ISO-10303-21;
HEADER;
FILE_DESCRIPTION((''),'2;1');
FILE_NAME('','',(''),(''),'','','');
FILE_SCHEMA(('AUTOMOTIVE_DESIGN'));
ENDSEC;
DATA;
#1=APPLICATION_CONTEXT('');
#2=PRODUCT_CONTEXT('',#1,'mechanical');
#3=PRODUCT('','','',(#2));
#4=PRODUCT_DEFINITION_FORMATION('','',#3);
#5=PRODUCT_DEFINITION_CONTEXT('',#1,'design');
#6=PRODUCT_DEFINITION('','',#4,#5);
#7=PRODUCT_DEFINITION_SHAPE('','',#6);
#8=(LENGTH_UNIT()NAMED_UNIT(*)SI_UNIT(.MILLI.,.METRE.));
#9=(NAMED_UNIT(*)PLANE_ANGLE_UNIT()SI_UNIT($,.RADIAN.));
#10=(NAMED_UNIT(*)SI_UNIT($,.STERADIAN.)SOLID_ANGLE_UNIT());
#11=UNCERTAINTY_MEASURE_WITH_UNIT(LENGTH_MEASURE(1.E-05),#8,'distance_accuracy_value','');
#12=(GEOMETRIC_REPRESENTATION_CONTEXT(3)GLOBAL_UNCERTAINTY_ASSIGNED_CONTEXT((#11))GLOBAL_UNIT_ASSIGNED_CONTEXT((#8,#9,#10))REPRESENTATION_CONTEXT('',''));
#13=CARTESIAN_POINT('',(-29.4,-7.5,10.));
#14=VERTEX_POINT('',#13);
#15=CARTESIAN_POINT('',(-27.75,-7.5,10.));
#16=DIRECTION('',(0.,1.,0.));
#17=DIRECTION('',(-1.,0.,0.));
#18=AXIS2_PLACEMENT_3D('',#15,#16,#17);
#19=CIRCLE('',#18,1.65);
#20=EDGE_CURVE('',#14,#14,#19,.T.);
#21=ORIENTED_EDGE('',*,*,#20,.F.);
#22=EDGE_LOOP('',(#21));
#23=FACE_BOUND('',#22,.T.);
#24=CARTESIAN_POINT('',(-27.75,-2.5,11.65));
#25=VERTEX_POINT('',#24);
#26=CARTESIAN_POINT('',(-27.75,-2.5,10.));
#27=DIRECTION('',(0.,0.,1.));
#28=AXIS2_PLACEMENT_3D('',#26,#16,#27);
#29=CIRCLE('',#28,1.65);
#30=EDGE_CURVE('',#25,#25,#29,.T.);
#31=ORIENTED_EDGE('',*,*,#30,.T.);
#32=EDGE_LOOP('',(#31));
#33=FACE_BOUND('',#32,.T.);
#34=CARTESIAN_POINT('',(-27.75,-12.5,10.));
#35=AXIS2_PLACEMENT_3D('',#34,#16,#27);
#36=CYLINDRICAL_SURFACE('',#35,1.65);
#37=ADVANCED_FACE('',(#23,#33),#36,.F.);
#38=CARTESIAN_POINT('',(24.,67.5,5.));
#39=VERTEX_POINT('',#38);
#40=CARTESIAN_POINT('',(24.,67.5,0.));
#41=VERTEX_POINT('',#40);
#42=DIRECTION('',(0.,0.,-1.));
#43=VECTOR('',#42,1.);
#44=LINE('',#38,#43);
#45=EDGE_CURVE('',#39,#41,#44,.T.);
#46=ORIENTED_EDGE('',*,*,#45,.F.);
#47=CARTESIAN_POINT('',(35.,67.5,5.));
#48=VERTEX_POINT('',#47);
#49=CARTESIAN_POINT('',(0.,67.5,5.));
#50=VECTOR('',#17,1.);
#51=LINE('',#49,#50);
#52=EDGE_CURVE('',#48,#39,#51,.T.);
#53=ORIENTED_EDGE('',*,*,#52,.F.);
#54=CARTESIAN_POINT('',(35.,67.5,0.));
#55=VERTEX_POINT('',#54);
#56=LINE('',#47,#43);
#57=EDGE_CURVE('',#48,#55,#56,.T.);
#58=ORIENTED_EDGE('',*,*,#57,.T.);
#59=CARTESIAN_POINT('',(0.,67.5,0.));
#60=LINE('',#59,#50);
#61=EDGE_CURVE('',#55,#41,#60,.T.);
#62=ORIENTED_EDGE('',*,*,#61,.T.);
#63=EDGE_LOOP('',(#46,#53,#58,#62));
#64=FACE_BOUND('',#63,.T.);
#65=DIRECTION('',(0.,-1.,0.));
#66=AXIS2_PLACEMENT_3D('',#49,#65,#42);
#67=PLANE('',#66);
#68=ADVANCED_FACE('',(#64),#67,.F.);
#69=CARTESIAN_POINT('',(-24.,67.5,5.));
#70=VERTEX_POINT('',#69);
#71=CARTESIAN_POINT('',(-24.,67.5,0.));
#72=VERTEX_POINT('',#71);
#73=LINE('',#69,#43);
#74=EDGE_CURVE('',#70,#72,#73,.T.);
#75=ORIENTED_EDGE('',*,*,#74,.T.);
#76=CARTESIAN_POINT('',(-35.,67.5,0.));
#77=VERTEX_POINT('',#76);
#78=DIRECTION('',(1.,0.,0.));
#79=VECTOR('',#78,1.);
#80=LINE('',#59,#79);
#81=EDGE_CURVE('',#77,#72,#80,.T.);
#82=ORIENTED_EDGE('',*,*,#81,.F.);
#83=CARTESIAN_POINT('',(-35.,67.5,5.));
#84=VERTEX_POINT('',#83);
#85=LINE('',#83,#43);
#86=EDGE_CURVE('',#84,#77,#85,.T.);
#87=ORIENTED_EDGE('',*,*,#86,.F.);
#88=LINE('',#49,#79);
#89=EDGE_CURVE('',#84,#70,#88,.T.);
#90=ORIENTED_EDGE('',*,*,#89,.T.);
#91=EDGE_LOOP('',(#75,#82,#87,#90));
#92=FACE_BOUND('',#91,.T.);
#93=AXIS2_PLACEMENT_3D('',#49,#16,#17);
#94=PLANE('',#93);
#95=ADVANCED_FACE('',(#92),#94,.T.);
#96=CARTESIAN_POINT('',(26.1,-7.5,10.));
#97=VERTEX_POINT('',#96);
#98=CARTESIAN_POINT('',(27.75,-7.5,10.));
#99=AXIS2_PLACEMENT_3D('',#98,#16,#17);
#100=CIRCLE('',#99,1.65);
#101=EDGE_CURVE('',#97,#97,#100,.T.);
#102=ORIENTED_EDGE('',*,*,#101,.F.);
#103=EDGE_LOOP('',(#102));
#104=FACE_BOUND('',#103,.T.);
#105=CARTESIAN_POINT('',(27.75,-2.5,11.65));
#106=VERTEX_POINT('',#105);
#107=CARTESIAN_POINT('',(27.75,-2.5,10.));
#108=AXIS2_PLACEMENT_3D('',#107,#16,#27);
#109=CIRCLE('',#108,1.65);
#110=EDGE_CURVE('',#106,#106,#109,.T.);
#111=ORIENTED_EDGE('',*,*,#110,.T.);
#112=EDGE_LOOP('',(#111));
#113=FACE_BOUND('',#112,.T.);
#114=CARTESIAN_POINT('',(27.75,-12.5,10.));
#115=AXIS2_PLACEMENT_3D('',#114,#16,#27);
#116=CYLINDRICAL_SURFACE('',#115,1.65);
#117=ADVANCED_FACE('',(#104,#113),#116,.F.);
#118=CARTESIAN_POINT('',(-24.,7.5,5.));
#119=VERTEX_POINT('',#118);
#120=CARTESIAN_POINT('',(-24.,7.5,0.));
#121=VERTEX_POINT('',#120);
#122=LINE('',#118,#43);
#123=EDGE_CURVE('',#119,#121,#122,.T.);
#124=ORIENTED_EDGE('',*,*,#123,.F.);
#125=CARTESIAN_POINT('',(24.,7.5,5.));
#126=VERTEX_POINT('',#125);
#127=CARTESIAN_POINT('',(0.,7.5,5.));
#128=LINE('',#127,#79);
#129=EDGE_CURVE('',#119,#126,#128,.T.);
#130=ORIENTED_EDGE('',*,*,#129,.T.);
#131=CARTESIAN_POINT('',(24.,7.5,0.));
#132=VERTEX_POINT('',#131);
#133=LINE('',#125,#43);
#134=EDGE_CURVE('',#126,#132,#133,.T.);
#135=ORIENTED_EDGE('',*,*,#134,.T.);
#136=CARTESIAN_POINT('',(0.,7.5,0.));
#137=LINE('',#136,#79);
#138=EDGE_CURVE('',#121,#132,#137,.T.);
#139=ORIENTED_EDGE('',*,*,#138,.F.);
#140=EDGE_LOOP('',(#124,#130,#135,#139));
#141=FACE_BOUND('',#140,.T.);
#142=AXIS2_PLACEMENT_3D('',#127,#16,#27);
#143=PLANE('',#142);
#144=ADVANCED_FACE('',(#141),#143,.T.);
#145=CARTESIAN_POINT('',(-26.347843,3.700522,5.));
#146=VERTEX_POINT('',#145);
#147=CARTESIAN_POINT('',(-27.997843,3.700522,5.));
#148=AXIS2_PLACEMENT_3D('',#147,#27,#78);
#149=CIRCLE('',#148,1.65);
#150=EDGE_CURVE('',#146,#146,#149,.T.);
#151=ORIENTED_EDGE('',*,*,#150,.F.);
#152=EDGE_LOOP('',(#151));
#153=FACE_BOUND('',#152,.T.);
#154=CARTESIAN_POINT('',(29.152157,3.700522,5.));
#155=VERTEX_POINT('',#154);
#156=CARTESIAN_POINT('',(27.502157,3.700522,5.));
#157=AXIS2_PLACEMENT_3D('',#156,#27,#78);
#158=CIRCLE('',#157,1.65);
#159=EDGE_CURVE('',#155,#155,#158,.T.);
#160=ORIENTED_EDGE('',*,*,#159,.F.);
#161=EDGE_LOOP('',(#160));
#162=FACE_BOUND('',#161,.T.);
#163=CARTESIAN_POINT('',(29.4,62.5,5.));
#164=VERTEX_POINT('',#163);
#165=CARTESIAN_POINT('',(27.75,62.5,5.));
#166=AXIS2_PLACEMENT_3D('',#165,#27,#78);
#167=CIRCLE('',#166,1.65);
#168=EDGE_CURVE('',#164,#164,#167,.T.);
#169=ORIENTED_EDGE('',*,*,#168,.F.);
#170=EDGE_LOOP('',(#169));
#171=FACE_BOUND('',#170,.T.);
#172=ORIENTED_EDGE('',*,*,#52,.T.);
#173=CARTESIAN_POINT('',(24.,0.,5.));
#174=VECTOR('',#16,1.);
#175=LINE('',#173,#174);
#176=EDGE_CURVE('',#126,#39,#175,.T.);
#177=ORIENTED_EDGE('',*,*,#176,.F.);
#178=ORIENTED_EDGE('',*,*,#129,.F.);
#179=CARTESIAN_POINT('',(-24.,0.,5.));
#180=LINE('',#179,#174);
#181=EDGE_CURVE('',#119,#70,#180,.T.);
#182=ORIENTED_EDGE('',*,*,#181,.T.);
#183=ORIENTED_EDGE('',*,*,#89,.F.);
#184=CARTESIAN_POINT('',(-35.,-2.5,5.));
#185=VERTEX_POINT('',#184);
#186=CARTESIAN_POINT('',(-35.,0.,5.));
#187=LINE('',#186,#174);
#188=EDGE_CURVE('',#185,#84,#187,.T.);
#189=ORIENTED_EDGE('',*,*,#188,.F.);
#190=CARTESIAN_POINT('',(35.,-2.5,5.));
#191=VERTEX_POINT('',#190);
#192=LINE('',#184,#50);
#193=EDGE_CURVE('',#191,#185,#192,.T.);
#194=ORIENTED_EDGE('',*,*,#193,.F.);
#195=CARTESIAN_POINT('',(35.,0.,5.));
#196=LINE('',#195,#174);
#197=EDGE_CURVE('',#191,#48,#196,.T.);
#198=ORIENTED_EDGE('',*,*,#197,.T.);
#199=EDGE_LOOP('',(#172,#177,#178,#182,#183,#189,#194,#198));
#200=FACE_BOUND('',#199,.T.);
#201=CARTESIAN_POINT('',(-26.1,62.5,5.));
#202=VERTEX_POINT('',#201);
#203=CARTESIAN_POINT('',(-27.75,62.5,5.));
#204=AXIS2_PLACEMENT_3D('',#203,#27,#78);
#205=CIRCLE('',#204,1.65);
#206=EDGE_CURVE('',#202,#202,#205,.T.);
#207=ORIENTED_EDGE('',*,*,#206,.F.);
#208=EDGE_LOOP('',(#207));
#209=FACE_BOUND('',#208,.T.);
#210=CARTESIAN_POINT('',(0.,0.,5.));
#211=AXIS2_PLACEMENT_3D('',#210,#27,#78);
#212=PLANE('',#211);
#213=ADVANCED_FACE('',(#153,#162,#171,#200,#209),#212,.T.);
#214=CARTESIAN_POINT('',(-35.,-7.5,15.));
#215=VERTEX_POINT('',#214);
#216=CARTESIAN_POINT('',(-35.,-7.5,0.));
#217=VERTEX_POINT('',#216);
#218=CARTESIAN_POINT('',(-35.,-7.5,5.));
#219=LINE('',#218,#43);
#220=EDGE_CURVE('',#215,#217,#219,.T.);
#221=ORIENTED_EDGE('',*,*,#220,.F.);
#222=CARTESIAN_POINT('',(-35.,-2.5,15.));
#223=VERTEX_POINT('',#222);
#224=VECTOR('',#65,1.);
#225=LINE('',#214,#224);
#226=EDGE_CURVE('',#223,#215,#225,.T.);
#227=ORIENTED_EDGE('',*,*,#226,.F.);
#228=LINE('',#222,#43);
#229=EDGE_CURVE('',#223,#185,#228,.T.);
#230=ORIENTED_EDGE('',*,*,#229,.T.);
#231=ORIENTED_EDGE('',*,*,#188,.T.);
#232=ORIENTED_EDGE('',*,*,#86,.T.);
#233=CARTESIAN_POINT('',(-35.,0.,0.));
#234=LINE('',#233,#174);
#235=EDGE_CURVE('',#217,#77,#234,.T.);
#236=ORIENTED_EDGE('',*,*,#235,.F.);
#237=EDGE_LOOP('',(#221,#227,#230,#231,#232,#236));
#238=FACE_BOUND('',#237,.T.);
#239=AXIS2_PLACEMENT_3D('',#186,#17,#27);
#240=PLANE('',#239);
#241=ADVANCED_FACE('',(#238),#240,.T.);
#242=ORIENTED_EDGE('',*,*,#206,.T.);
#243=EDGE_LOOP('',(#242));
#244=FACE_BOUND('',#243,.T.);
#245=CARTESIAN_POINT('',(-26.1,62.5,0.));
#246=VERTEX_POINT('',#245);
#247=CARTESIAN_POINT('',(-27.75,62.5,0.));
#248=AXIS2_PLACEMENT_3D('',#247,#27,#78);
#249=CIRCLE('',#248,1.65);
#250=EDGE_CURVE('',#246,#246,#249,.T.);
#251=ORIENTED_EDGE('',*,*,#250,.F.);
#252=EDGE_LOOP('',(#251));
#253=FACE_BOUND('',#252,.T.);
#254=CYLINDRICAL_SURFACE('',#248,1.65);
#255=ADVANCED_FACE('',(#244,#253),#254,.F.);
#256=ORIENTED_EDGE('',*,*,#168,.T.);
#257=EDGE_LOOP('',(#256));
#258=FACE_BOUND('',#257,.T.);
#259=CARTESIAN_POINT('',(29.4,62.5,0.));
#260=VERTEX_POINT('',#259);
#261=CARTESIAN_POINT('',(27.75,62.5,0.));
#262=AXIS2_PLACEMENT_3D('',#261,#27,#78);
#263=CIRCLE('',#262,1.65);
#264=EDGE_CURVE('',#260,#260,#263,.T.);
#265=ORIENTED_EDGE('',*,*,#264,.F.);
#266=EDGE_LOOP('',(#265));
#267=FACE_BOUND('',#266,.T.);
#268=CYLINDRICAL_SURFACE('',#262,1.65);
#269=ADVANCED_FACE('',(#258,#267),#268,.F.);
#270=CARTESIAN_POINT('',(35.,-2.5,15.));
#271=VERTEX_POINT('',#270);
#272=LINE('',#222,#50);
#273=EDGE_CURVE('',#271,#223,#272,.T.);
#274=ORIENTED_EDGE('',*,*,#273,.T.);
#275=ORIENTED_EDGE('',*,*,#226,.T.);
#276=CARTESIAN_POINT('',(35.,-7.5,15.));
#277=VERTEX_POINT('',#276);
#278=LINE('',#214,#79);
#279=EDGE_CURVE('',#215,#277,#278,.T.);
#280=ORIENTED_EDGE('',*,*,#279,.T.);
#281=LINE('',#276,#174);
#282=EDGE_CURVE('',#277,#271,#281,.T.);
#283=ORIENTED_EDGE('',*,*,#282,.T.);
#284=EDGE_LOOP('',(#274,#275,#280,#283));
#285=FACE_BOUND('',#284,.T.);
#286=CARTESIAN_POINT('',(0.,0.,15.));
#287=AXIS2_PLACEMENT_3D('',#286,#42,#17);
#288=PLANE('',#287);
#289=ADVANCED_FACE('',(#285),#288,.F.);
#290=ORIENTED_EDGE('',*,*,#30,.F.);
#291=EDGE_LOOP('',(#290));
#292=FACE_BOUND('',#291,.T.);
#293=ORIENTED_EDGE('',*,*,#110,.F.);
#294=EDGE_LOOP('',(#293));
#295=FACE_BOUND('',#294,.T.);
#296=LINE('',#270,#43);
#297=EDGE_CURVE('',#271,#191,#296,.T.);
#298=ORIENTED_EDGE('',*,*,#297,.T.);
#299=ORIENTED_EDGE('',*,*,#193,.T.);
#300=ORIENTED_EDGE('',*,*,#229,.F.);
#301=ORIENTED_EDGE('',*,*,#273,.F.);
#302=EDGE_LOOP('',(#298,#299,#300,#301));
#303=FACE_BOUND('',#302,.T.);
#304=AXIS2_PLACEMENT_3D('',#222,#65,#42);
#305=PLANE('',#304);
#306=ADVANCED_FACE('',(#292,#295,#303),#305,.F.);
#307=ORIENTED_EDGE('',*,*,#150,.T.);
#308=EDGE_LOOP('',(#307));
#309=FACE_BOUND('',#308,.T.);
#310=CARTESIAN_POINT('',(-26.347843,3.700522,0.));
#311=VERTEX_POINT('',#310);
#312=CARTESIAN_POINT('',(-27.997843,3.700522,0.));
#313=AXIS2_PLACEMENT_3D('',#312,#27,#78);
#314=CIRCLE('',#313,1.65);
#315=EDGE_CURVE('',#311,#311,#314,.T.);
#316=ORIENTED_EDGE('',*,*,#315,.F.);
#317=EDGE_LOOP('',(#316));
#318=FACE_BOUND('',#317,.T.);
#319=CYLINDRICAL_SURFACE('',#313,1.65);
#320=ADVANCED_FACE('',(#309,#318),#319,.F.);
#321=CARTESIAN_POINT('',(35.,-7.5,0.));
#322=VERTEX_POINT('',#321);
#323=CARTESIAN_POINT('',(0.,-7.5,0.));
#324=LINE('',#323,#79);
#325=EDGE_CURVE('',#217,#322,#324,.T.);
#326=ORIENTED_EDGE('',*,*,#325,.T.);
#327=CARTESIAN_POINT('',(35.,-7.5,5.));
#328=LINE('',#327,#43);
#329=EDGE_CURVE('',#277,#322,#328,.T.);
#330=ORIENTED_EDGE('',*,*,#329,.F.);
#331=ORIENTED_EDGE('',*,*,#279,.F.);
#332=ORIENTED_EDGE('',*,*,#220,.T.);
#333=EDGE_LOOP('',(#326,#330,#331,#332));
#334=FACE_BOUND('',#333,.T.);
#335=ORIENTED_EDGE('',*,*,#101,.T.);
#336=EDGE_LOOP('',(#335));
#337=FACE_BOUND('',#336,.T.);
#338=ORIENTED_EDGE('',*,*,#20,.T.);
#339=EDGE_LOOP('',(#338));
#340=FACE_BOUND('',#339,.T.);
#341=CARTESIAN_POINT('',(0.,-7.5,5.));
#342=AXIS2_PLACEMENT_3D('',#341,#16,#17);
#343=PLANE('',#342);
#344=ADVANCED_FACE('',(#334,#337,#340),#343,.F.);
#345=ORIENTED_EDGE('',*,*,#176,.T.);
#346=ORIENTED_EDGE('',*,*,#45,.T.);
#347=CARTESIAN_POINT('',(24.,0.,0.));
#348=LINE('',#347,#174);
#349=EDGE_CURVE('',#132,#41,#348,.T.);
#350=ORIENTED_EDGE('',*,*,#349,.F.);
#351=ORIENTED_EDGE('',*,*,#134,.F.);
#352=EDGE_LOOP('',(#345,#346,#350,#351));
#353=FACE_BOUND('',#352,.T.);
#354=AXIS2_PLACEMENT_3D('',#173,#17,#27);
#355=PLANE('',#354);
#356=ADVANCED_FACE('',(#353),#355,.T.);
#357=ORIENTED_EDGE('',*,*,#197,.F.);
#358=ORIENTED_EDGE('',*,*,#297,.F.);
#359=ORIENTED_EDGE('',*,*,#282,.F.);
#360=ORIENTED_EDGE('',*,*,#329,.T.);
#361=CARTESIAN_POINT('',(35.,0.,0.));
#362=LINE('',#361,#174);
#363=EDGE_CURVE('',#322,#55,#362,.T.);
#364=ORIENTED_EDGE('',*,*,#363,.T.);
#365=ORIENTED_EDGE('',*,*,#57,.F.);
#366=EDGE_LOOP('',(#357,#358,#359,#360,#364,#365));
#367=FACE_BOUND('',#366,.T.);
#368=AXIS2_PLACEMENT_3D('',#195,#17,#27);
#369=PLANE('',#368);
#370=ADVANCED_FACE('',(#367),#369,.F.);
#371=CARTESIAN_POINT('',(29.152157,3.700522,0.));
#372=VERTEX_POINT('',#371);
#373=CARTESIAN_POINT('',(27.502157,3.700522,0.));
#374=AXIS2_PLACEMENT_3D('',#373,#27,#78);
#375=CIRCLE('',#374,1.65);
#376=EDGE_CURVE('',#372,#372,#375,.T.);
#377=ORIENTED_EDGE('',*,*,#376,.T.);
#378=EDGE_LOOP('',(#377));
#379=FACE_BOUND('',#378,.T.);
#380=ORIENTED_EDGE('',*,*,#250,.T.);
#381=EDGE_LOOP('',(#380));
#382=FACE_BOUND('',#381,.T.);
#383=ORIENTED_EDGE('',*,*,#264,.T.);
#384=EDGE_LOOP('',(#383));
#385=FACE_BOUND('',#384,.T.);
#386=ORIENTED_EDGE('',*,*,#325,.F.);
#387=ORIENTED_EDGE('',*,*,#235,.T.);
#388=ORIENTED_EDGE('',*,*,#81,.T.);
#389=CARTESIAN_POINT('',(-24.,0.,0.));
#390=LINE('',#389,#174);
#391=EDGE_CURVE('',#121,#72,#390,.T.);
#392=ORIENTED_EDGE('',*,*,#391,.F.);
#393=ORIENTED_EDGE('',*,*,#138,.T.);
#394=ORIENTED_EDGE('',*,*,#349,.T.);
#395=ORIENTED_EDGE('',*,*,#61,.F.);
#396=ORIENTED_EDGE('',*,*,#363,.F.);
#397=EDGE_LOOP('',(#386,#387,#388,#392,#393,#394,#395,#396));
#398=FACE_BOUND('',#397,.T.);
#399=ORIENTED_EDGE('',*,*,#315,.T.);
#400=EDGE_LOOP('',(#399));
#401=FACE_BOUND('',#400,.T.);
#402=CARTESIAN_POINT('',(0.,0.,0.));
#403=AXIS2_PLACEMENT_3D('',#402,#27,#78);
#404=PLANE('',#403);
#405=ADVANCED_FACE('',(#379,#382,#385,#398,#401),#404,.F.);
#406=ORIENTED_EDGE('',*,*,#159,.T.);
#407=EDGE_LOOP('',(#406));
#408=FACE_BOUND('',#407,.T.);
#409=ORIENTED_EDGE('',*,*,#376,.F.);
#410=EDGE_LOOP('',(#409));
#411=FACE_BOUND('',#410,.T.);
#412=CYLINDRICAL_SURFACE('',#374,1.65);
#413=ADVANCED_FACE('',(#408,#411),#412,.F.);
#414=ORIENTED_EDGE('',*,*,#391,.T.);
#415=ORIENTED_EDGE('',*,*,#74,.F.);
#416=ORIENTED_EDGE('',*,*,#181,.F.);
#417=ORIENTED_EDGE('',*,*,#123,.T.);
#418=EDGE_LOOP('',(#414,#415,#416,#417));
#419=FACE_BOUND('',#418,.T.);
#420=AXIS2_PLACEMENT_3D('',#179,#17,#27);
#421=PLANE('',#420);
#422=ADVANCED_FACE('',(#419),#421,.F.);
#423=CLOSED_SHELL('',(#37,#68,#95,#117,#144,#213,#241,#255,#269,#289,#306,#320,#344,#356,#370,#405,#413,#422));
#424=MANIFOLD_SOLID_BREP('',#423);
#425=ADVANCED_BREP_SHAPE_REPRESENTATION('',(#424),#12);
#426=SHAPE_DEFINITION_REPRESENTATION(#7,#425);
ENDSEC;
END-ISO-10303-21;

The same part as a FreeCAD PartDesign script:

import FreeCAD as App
import Part
import Sketcher

V = App.Vector
Q = App.Units.Quantity

doc = App.newDocument("Part")
body = doc.addObject("PartDesign::Body", "Body")

# Sketch on XY plane
sketch1 = body.newObject("Sketcher::SketchObject", "Sketch")
sketch1.AttachmentSupport = (doc.getObject("XY_Plane"), [""])
sketch1.MapMode = "FlatFace"
sketch1.addGeometry([
    Part.LineSegment(V(-35, 68, 0), V(-35, -8, 0)),  # 0
    Part.LineSegment(V(-35, -8, 0), V(35, -8, 0)),  # 1
    Part.LineSegment(V(35, -8, 0), V(35, 68, 0)),  # 2
    Part.LineSegment(V(35, 68, 0), V(24, 68, 0)),  # 3
    Part.LineSegment(V(24, 68, 0), V(24, 8, 0)),  # 4
    Part.LineSegment(V(24, 8, 0), V(-24, 8, 0)),  # 5
    Part.LineSegment(V(-24, 8, 0), V(-24, 68, 0)),  # 6
    Part.LineSegment(V(-24, 68, 0), V(-35, 68, 0)),  # 7
], False)
sketch1.addConstraint([
    Sketcher.Constraint("Coincident", 0, 2, 1, 1),
    Sketcher.Constraint("Coincident", 1, 2, 2, 1),
    Sketcher.Constraint("Coincident", 2, 2, 3, 1),
    Sketcher.Constraint("Coincident", 3, 2, 4, 1),
    Sketcher.Constraint("Coincident", 4, 2, 5, 1),
    Sketcher.Constraint("Coincident", 5, 2, 6, 1),
    Sketcher.Constraint("Coincident", 6, 2, 7, 1),
    Sketcher.Constraint("Coincident", 7, 2, 0, 1),
    Sketcher.Constraint("Vertical", 0),
    Sketcher.Constraint("Horizontal", 1),
    Sketcher.Constraint("Vertical", 2),
    Sketcher.Constraint("Horizontal", 3),
    Sketcher.Constraint("Vertical", 4),
    Sketcher.Constraint("Horizontal", 5),
    Sketcher.Constraint("Vertical", 6),
    Sketcher.Constraint("Horizontal", 7),
    Sketcher.Constraint("Symmetric", 3, 2, 6, 2, -2),
    Sketcher.Constraint("Equal", 3, 7),
    Sketcher.Constraint("DistanceX", 1, 1, 1, 2, Q("70 mm")),
    Sketcher.Constraint("DistanceX", 3, 2, 3, 1, Q("11 mm")),
    Sketcher.Constraint("DistanceY", 0, 2, 0, 1, Q("75 mm")),
    Sketcher.Constraint("DistanceY", 4, 2, 4, 1, Q("60 mm")),
    Sketcher.Constraint("DistanceY", 0, 2, -1, 1, Q("7.5 mm")),
])
pad1 = body.newObject("PartDesign::Pad", "Pad")
pad1.Profile = sketch1
pad1.Length = 5

# Sketch on XY plane
sketch2 = body.newObject("Sketcher::SketchObject", "Sketch001")
sketch2.AttachmentSupport = (doc.getObject("XY_Plane"), [""])
sketch2.MapMode = "FlatFace"
sketch2.AttachmentOffset = App.Placement(V(0, 0, 5), App.Rotation())
sketch2.addGeometry([
    Part.Circle(V(-28, 3.7, 0), V(0, 0, 1), 1.6),
    Part.Circle(V(27.5, 3.7, 0), V(0, 0, 1), 1.6),
    Part.Circle(V(27.8, 62.5, 0), V(0, 0, 1), 1.6),
    Part.Circle(V(-27.8, 62.5, 0), V(0, 0, 1), 1.6),
], False)
sketch2.addConstraint([
    Sketcher.Constraint("Equal", 0, 1),
    Sketcher.Constraint("Equal", 1, 2),
    Sketcher.Constraint("Equal", 2, 3),
    Sketcher.Constraint("Symmetric", 2, 3, 3, 3, -2),
    Sketcher.Constraint("Horizontal", 0, 3, 1, 3),
    Sketcher.Constraint("Diameter", 0, Q("3.3 mm")),
    Sketcher.Constraint("DistanceY", -1, 1, 2, 3, Q("62.5 mm")),
    Sketcher.Constraint("DistanceX", 0, 3, 1, 3, Q("55.5 mm")),
    Sketcher.Constraint("DistanceX", 3, 3, 2, 3, Q("55.5 mm")),
    Sketcher.Constraint("DistanceX", 0, 3, -1, 1, Q("27.997843 mm")),
    Sketcher.Constraint("DistanceY", -1, 1, 0, 3, Q("3.700522 mm")),
])
pocket1 = body.newObject("PartDesign::Pocket", "Pocket")
pocket1.Profile = sketch2
pocket1.Length = 5

# Sketch on XY plane
sketch3 = body.newObject("Sketcher::SketchObject", "Sketch002")
sketch3.AttachmentSupport = (doc.getObject("XY_Plane"), [""])
sketch3.MapMode = "FlatFace"
sketch3.AttachmentOffset = App.Placement(V(0, 0, 5), App.Rotation())
sketch3.addGeometry([
    Part.LineSegment(V(-35, -2, 0), V(-35, -8, 0)),
    Part.LineSegment(V(-35, -8, 0), V(35, -8, 0)),
    Part.LineSegment(V(35, -8, 0), V(35, -2, 0)),
    Part.LineSegment(V(35, -2, 0), V(-35, -2, 0)),
], False)
sketch3.addConstraint([
    Sketcher.Constraint("Coincident", 0, 2, 1, 1),
    Sketcher.Constraint("Coincident", 1, 2, 2, 1),
    Sketcher.Constraint("Coincident", 2, 2, 3, 1),
    Sketcher.Constraint("Coincident", 3, 2, 0, 1),
    Sketcher.Constraint("Vertical", 0),
    Sketcher.Constraint("Horizontal", 1),
    Sketcher.Constraint("Vertical", 2),
    Sketcher.Constraint("Horizontal", 3),
    Sketcher.Constraint("DistanceX", 1, 1, 1, 2, Q("70 mm")),
    Sketcher.Constraint("DistanceY", 0, 2, 0, 1, Q("5 mm")),
    Sketcher.Constraint("DistanceX", 0, 2, -1, 1, Q("35 mm")),
    Sketcher.Constraint("DistanceY", 0, 2, -1, 1, Q("7.5 mm")),
])
pad2 = body.newObject("PartDesign::Pad", "Pad001")
pad2.Profile = sketch3
pad2.Length = 10

# Sketch on XZ plane
sketch4 = body.newObject("Sketcher::SketchObject", "Sketch003")
sketch4.AttachmentSupport = (doc.getObject("XZ_Plane"), [""])
sketch4.MapMode = "FlatFace"
sketch4.AttachmentOffset = App.Placement(V(0, 0, 2.5), App.Rotation())
sketch4.addGeometry([
    Part.Circle(V(-27.8, 10, 0), V(0, 0, 1), 1.6),
    Part.Circle(V(27.8, 10, 0), V(0, 0, 1), 1.6),
], False)
sketch4.addConstraint([
    Sketcher.Constraint("Equal", 0, 1),
    Sketcher.Constraint("Symmetric", 0, 3, 1, 3, -2),
    Sketcher.Constraint("Diameter", 0, Q("3.3 mm")),
    Sketcher.Constraint("DistanceY", -1, 1, 0, 3, Q("10 mm")),
    Sketcher.Constraint("DistanceX", 0, 3, 1, 3, Q("55.5 mm")),
])
pocket2 = body.newObject("PartDesign::Pocket", "Pocket001")
pocket2.Profile = sketch4
pocket2.Length = 10
pocket2.Reversed = True

doc.recompute()
